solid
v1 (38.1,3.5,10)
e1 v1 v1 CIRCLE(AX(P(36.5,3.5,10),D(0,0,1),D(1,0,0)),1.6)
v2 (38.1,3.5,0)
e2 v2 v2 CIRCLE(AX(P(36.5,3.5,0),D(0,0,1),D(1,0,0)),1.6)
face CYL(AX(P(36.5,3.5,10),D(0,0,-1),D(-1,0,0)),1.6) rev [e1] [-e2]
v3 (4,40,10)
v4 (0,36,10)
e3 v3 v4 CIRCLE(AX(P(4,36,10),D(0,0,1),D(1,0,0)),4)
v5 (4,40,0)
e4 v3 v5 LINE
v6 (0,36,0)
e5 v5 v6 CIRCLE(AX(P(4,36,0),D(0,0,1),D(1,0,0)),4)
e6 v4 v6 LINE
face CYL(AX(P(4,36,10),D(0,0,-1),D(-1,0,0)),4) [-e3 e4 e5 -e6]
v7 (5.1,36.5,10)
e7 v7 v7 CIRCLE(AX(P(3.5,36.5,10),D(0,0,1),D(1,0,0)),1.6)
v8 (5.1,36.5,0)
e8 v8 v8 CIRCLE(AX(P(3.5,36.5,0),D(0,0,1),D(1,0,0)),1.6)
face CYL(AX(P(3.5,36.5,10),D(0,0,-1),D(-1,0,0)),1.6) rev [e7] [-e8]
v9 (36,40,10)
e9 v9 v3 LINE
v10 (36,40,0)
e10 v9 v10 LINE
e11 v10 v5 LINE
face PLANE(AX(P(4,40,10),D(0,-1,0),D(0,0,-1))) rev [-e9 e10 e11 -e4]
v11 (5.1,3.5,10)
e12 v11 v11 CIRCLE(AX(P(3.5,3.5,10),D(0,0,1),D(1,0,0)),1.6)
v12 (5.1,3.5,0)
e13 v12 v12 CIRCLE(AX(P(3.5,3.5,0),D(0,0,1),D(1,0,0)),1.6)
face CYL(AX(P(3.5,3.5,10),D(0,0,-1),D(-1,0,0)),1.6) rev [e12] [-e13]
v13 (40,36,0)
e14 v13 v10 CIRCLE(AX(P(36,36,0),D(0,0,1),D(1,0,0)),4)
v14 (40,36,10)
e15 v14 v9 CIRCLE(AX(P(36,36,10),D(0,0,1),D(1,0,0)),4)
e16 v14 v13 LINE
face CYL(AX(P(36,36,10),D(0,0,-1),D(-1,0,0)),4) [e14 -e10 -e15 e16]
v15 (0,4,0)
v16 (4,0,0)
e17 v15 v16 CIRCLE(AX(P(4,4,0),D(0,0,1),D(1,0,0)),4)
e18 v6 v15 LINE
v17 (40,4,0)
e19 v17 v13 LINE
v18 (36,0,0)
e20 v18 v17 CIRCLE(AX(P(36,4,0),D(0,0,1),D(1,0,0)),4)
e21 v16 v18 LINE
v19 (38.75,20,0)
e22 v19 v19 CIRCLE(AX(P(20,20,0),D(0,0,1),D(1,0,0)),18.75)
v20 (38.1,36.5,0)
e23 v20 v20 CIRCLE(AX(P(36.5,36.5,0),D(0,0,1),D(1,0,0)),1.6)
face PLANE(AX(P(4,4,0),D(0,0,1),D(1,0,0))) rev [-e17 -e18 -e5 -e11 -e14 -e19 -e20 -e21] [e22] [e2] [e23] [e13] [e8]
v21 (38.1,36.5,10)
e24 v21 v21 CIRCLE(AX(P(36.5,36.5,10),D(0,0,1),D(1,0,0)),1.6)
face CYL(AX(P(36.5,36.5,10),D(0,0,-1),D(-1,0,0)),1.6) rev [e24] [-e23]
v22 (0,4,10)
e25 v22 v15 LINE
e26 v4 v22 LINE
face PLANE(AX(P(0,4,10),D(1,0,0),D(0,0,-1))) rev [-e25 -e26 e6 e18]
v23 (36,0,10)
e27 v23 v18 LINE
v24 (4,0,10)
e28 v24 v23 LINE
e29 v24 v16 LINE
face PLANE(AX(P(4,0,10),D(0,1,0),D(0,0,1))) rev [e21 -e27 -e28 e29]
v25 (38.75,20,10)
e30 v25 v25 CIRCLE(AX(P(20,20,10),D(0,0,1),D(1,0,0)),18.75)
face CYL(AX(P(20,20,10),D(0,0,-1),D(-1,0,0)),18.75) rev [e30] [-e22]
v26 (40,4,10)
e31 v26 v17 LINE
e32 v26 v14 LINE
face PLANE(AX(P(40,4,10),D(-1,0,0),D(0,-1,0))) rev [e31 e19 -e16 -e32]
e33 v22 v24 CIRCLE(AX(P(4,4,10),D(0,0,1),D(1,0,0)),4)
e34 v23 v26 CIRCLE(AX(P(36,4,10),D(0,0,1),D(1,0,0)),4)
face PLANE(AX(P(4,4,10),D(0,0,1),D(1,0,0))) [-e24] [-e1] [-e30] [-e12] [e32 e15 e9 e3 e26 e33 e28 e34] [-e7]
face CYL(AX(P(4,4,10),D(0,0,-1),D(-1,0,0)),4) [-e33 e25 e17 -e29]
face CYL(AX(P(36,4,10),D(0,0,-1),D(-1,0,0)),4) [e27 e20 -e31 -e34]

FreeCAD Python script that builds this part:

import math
import FreeCAD as App
import Part
import Sketcher
from FreeCAD import Vector
Q = App.Units.Quantity

doc = App.newDocument("Part")
body = doc.addObject("PartDesign::Body", "Body")

# Sketch on XY plane
sketch1 = body.newObject("Sketcher::SketchObject", "Sketch")
sketch1.AttachmentSupport = (doc.getObject("XY_Plane"), [""])
sketch1.MapMode = "FlatFace"
sketch1.addGeometry([
    Part.LineSegment(Vector(4, 0, 0), Vector(36, 0, 0)),  # 0
    Part.ArcOfCircle(Part.Circle(Vector(36, 4, 0), Vector(0, 0, 1), 4), math.radians(-90), math.radians(0)),  # 1
    Part.LineSegment(Vector(40, 4, 0), Vector(40, 36, 0)),  # 2
    Part.ArcOfCircle(Part.Circle(Vector(36, 36, 0), Vector(0, 0, 1), 4), math.radians(0), math.radians(90)),  # 3
    Part.LineSegment(Vector(36, 40, 0), Vector(4, 40, 0)),  # 4
    Part.ArcOfCircle(Part.Circle(Vector(4, 36, 0), Vector(0, 0, 1), 4), math.radians(90), math.radians(180)),  # 5
    Part.LineSegment(Vector(0, 36, 0), Vector(0, 4, 0)),  # 6
    Part.ArcOfCircle(Part.Circle(Vector(4, 4, 0), Vector(0, 0, 1), 4), math.radians(180), math.radians(270)),  # 7
    Part.Circle(Vector(3.5, 3.5, 0), Vector(0, 0, 1), 1.6),  # 8
    Part.Circle(Vector(36.5, 3.5, 0), Vector(0, 0, 1), 1.6),  # 9
    Part.Circle(Vector(3.5, 36.5, 0), Vector(0, 0, 1), 1.6),  # 10
    Part.Circle(Vector(20, 20, 0), Vector(0, 0, 1), 18.75),  # 11
    Part.Circle(Vector(36.5, 36.5, 0), Vector(0, 0, 1), 1.6),  # 12
], False)
sketch1.addConstraint([
    Sketcher.Constraint("Tangent", 0, 2, 1, 1),
    Sketcher.Constraint("Tangent", 1, 2, 2, 1),
    Sketcher.Constraint("Tangent", 2, 2, 3, 1),
    Sketcher.Constraint("Tangent", 3, 2, 4, 1),
    Sketcher.Constraint("Tangent", 4, 2, 5, 1),
    Sketcher.Constraint("Tangent", 5, 2, 6, 1),
    Sketcher.Constraint("Tangent", 6, 2, 7, 1),
    Sketcher.Constraint("Tangent", 7, 2, 0, 1),
    Sketcher.Constraint("Horizontal", 0),
    Sketcher.Constraint("Vertical", 2),
    Sketcher.Constraint("Horizontal", 4),
    Sketcher.Constraint("Vertical", 6),
    Sketcher.Constraint("Equal", 1, 3),
    Sketcher.Constraint("Equal", 3, 5),
    Sketcher.Constraint("Equal", 5, 7),
    Sketcher.Constraint("Equal", 8, 9),
    Sketcher.Constraint("Equal", 9, 10),
    Sketcher.Constraint("Equal", 10, 12),
    Sketcher.Constraint("PointOnObject", 0, 2, -1),
    Sketcher.Constraint("PointOnObject", 5, 2, -2),
    Sketcher.Constraint("Horizontal", 8, 3, 9, 3),
    Sketcher.Constraint("Horizontal", 10, 3, 12, 3),
    Sketcher.Constraint("Vertical", 8, 3, 10, 3),
    Sketcher.Constraint("Vertical", 9, 3, 12, 3),
    Sketcher.Constraint("Equal", 4, 2),
    Sketcher.Constraint("Radius", 1, Q("4 mm")),
    Sketcher.Constraint("Diameter", 8, Q("3.2 mm")),
    Sketcher.Constraint("Diameter", 11, Q("37.5 mm")),
    Sketcher.Constraint("DistanceX", 0, 1, 0, 2, Q("32 mm")),
    Sketcher.Constraint("DistanceX", -1, 1, 11, 3, Q("20 mm")),
    Sketcher.Constraint("DistanceY", -1, 1, 11, 3, Q("20 mm")),
    Sketcher.Constraint("DistanceX", 8, 3, 9, 3, Q("33 mm")),
    Sketcher.Constraint("DistanceY", 8, 3, 10, 3, Q("33 mm")),
    Sketcher.Constraint("DistanceX", -1, 1, 8, 3, Q("3.5 mm")),
    Sketcher.Constraint("DistanceY", -1, 1, 8, 3, Q("3.5 mm")),
])
pad1 = body.newObject("PartDesign::Pad", "Pad")
pad1.Profile = sketch1
pad1.Length = 10

doc.recompute()
